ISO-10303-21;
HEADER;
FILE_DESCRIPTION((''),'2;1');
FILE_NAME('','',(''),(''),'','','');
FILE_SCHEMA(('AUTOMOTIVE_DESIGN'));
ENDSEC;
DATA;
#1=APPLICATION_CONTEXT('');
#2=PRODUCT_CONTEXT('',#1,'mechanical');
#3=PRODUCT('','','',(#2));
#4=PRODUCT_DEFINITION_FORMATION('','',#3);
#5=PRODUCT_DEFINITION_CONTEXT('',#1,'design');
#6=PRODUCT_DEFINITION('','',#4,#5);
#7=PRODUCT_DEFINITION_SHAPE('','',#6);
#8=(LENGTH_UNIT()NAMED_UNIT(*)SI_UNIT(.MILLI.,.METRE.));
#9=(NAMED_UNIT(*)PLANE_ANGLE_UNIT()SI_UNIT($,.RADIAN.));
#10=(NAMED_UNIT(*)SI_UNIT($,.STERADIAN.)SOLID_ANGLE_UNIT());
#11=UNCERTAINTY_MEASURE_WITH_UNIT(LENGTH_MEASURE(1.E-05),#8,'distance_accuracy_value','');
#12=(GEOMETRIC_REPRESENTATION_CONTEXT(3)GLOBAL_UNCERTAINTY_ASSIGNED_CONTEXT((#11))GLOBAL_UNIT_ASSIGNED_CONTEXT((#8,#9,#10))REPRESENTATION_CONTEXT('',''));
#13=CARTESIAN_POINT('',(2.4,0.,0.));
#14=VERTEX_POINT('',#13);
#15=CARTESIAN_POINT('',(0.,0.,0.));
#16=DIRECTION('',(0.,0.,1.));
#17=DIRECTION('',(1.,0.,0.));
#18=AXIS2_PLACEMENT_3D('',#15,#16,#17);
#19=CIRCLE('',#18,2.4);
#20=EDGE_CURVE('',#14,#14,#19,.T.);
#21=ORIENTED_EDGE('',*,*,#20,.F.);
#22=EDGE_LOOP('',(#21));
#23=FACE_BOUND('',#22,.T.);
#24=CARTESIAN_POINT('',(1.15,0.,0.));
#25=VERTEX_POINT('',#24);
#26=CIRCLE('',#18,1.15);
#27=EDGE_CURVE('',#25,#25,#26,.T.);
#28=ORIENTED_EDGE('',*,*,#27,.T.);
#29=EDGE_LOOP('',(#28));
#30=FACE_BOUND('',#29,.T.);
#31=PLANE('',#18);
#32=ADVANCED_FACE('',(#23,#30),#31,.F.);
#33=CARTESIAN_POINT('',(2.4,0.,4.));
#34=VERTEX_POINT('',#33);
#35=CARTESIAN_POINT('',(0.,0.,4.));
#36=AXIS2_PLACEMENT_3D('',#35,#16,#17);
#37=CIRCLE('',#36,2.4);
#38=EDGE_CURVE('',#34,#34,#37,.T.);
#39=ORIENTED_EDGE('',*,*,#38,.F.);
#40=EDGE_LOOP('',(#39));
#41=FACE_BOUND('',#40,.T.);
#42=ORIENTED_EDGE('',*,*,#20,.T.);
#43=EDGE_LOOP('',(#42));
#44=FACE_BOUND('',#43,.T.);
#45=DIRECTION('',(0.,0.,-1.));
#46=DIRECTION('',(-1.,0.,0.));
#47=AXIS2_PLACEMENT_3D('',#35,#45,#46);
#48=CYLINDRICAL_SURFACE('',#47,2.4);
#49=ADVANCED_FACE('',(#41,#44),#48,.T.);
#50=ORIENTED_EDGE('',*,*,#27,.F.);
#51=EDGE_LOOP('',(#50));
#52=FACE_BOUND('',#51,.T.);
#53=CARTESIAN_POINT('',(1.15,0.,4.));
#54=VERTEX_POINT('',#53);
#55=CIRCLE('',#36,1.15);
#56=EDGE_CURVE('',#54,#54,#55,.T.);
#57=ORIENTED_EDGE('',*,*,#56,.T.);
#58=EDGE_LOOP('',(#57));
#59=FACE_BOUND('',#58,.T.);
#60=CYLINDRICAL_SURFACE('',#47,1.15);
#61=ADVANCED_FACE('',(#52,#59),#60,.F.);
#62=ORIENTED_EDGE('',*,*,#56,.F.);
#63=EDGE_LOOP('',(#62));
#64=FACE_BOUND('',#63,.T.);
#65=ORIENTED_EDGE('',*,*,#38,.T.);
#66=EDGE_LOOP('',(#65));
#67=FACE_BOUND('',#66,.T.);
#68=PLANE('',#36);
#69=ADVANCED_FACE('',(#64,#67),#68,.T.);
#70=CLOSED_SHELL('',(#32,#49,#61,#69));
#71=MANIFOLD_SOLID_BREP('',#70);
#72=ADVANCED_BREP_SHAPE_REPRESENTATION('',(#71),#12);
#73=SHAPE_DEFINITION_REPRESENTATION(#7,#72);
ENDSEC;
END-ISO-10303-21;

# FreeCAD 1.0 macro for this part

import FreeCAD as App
import Part
import Sketcher
from FreeCAD import Vector
Q = App.Units.Quantity

doc = App.newDocument("Part")
body = doc.addObject("PartDesign::Body", "Body")

# Sketch on XY plane
sketch1 = body.newObject("Sketcher::SketchObject", "Sketch")
sketch1.AttachmentSupport = (doc.getObject("XY_Plane"), [""])
sketch1.MapMode = "FlatFace"
sketch1.addGeometry(Part.Circle(Vector(0, 0, 0), Vector(0, 0, 1), 2.4), False)
sketch1.addGeometry(Part.Circle(Vector(0, 0, 0), Vector(0, 0, 1), 1.15), False)
sketch1.addConstraint(Sketcher.Constraint("Coincident", 0, 3, -1, 1))
sketch1.addConstraint(Sketcher.Constraint("Coincident", 1, 3, -1, 1))
sketch1.addConstraint(Sketcher.Constraint("Diameter", 0, Q("4.8 mm")))
sketch1.addConstraint(Sketcher.Constraint("Diameter", 1, Q("2.3 mm")))
pad1 = body.newObject("PartDesign::Pad", "Pad")
pad1.Profile = sketch1
pad1.Length = 4

doc.recompute()
